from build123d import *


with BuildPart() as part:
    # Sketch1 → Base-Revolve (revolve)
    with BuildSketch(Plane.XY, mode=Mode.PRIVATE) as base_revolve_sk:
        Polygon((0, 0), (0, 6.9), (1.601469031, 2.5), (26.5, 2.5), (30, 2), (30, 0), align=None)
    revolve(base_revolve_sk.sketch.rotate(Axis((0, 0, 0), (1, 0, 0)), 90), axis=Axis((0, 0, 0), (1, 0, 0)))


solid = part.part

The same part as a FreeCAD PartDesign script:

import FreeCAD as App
import Part
import Sketcher
Q = App.Units.Quantity


def add_polygon(sketch, points):
    """Adds a closed chain of lines whose ends are joined by coincident constraints."""
    first, n = sketch.GeometryCount, len(points)
    for a, b in zip(points, points[1:] + points[:1]):
        sketch.addGeometry(Part.LineSegment(App.Vector(*a, 0), App.Vector(*b, 0)), False)
    for i in range(n):
        sketch.addConstraint(Sketcher.Constraint("Coincident", first + i, 2, first + (i + 1) % n, 1))

doc = App.newDocument("Part")
params = doc.addObject("Spreadsheet::Sheet", "Params")
for row, (alias, value) in enumerate([
    ("sketch1_width", "30 mm"),
    ("sketch1_height", "2 mm"),
    ("sketch1_height2", "6.9 mm"),
    ("revolution_angle", "360 deg"),
], start=1):
    params.set(f"A{row}", alias)
    params.set(f"B{row}", "=" + value)
    params.setAlias(f"B{row}", alias)

body = doc.addObject("PartDesign::Body", "Body")

# Sketch on XY plane
sketch1 = body.newObject("Sketcher::SketchObject", "Sketch")
sketch1.AttachmentSupport = (doc.getObject("XY_Plane"), [""])
sketch1.MapMode = "FlatFace"
add_polygon(sketch1, [(0, 6.9), (0, 0), (30, 0), (30, 2), (26.5, 2.5), (1.6, 2.5)])  # lines 0-5
sketch1.addConstraint(Sketcher.Constraint("Vertical", 0))
sketch1.addConstraint(Sketcher.Constraint("Horizontal", 1))
sketch1.addConstraint(Sketcher.Constraint("Vertical", 2))
sketch1.addConstraint(Sketcher.Constraint("Horizontal", 4))
sketch1.addConstraint(Sketcher.Constraint("Coincident", 0, 2, -1, 1))
sketch1.addConstraint(Sketcher.Constraint("DistanceX", 1, 1, 1, 2, 30.0))
sketch1.addConstraint(Sketcher.Constraint("DistanceY", 2, 1, 2, 2, 2.0))
sketch1.addConstraint(Sketcher.Constraint("Angle", 5, Q("110 deg")))
sketch1.addConstraint(Sketcher.Constraint("DistanceY", 0, 2, 0, 1, 6.9))
sketch1.addConstraint(Sketcher.Constraint("DistanceX", -1, 1, 3, 2, 26.5))
sketch1.addConstraint(Sketcher.Constraint("DistanceY", -1, 1, 3, 2, 2.5))
sketch1.setExpression("Constraints[11]", "Params.sketch1_width")
sketch1.setExpression("Constraints[12]", "Params.sketch1_height")
sketch1.setExpression("Constraints[14]", "Params.sketch1_height2")
revolution = body.newObject("PartDesign::Revolution", "Revolution")
revolution.Profile = sketch1
revolution.ReferenceAxis = (sketch1, ["H_Axis"])
revolution.setExpression("Angle", "Params.revolution_angle")

doc.recompute()
